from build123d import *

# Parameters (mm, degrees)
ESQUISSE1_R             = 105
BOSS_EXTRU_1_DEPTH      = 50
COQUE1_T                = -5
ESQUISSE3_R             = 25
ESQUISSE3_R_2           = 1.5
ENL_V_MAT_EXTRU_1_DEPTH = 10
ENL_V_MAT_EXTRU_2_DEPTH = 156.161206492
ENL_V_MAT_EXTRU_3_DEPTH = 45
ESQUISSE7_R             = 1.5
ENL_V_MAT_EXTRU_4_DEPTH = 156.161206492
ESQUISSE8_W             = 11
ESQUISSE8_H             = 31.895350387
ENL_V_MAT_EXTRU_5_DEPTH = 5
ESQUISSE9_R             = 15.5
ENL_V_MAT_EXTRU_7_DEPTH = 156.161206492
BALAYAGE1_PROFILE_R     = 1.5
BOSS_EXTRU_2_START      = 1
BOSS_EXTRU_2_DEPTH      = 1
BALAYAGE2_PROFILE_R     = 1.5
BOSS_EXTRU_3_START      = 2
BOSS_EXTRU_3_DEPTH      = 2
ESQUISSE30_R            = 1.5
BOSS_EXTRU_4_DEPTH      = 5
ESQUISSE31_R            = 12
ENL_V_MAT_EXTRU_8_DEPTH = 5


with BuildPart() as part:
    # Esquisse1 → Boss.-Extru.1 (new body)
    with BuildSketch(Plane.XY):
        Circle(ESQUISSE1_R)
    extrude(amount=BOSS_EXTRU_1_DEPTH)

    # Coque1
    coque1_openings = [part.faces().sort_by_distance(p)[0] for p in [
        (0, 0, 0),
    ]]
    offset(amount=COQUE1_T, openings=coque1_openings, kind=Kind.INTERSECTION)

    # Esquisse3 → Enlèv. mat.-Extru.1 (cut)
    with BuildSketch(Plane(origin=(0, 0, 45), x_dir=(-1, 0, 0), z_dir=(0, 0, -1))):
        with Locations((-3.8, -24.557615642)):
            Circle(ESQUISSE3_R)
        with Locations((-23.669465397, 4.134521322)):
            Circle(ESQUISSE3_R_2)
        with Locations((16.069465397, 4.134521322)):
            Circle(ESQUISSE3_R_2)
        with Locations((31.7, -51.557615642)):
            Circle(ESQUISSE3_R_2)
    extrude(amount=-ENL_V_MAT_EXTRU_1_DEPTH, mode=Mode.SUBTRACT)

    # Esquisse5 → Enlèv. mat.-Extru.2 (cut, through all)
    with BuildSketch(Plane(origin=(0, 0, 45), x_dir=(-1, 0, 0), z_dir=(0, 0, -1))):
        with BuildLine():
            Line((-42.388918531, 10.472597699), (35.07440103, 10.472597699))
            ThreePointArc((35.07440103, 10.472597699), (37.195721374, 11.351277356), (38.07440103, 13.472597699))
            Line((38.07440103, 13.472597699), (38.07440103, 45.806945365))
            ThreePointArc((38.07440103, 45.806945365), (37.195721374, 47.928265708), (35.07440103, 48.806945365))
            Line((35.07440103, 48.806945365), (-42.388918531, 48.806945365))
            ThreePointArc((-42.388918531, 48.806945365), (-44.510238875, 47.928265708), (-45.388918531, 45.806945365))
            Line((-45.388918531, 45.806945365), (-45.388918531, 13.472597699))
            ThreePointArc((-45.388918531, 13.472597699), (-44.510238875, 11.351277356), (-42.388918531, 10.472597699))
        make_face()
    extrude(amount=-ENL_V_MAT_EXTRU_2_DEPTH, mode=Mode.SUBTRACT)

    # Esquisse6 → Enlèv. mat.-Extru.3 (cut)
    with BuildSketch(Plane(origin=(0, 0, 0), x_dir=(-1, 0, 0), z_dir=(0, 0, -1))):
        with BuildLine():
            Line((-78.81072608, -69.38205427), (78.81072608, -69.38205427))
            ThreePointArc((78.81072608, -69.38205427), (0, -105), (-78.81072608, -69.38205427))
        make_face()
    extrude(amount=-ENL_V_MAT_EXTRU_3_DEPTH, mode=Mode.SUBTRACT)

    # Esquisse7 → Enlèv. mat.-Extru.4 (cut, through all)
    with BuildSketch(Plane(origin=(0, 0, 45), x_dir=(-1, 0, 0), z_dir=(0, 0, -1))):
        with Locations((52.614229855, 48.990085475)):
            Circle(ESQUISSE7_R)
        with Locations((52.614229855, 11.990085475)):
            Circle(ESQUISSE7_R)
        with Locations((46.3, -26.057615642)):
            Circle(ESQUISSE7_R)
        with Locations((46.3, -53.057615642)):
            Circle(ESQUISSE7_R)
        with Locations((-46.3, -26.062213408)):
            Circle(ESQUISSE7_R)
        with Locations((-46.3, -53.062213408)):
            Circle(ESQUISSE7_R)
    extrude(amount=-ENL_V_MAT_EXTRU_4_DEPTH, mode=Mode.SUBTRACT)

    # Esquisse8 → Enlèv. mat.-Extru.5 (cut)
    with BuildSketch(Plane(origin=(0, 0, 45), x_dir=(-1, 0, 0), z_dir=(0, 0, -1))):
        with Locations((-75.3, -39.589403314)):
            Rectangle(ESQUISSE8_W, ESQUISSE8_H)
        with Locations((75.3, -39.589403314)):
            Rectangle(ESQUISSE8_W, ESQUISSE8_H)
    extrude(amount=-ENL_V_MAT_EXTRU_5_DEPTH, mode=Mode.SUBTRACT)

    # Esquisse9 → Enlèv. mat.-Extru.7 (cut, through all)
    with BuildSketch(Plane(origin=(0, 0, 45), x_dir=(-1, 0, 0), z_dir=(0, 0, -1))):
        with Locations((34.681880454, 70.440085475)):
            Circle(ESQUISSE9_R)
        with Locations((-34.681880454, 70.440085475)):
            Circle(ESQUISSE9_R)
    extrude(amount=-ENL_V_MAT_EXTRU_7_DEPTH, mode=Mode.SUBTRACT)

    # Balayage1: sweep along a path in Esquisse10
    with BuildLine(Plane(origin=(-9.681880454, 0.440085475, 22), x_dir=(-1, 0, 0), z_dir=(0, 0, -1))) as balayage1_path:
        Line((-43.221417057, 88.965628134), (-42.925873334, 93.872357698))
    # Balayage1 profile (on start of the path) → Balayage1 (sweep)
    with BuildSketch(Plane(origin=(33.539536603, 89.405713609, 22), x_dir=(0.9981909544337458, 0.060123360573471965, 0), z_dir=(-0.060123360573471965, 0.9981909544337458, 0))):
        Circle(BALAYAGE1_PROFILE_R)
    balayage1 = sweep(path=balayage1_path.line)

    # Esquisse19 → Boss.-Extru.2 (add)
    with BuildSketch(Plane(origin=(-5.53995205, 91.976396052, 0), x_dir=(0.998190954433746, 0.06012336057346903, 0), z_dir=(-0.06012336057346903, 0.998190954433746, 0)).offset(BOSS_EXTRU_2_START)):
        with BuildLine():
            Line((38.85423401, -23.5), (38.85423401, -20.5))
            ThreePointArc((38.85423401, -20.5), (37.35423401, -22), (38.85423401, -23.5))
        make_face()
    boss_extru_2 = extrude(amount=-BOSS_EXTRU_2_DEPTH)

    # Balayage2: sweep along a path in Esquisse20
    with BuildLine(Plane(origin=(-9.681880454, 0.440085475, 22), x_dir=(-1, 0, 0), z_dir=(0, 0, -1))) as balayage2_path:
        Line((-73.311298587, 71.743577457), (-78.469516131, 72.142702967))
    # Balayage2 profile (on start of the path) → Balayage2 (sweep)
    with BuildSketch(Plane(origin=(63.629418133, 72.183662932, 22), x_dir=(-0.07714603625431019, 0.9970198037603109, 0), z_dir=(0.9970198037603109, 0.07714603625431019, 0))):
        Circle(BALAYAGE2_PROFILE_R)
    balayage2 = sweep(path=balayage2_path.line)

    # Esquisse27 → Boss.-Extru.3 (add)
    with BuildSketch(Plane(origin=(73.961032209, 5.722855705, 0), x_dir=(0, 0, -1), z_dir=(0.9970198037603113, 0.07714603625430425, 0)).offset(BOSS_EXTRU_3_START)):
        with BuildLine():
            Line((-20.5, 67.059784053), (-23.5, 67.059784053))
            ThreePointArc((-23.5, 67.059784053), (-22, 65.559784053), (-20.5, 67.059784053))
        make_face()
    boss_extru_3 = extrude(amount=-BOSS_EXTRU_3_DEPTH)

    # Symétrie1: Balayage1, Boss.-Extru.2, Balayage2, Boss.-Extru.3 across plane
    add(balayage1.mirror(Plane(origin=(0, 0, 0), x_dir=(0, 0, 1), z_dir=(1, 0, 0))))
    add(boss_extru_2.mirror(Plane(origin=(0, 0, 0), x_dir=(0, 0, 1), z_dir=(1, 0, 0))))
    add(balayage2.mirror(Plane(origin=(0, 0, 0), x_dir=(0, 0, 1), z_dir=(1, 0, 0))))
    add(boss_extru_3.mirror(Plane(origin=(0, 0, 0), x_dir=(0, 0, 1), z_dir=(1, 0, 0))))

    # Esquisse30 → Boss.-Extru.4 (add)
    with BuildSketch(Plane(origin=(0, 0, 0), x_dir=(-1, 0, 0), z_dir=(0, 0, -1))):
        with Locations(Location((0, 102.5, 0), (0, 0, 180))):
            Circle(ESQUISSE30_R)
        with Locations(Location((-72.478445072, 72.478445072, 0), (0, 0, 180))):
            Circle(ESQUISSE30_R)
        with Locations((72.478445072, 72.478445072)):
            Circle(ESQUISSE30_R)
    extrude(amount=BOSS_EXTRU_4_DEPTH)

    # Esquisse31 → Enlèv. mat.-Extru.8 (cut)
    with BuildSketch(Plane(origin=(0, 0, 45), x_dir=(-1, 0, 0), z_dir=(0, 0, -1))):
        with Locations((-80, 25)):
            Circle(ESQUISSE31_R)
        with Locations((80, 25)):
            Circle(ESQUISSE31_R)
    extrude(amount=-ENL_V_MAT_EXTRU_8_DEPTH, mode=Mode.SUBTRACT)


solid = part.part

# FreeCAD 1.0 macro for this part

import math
import FreeCAD as App
import Part
import Sketcher

V = App.Vector


def faces_at(feature, points):
    """Names of the faces that lie closest to the given points."""
    faces = feature.Shape.Faces
    near = lambda p: min(range(len(faces)), key=lambda i: faces[i].distToShape(Part.Vertex(*p))[0])
    return sorted({f"Face{near(p) + 1}" for p in points})

doc = App.newDocument("Part")
body = doc.addObject("PartDesign::Body", "Body")

# Sketch on XY plane
sketch1 = doc.addObject("Sketcher::SketchObject", "Sketch")
body.addObject(sketch1)
sketch1.AttachmentSupport = (doc.XY_Plane, [""])
sketch1.MapMode = "FlatFace"
sketch1.addGeometry(Part.Circle(V(0, 0, 0), V(0, 0, 1), 105), False)
sketch1.addConstraint([
    Sketcher.Constraint("Coincident", 0, 3, -1, 1),
    Sketcher.Constraint("Diameter", 0, 210.0),
])
pad1 = doc.addObject("PartDesign::Pad", "Pad")
body.addObject(pad1)
pad1.Profile = sketch1
pad1.Length = 50
doc.recompute()

thickness = doc.addObject("PartDesign::Thickness", "Thickness")
body.addObject(thickness)
thickness.Base = (pad1, faces_at(pad1, [(0, 0, 0)]))
thickness.Value = 5
thickness.Reversed = True
thickness.Join = "Intersection"

# Sketch on XY plane
sketch2 = doc.addObject("Sketcher::SketchObject", "Sketch001")
body.addObject(sketch2)
sketch2.AttachmentSupport = (doc.XY_Plane, [""])
sketch2.MapMode = "FlatFace"
sketch2.AttachmentOffset = App.Placement(V(0, 0, 45), App.Rotation())
sketch2.addGeometry([
    Part.Circle(V(3.8, -24.6, 0), V(0, 0, 1), 25),
    Part.Circle(V(23.7, 4.1, 0), V(0, 0, 1), 1.5),
    Part.Circle(V(-16.1, 4.1, 0), V(0, 0, 1), 1.5),
    Part.Circle(V(-31.7, -51.6, 0), V(0, 0, 1), 1.5),
], False)
sketch2.addConstraint([
    Sketcher.Constraint("Equal", 1, 2),
    Sketcher.Constraint("Equal", 2, 3),
    Sketcher.Constraint("Horizontal", 1, 3, 2, 3),
    Sketcher.Constraint("Diameter", 0, 50.0),
    Sketcher.Constraint("Diameter", 1, 3.0),
    Sketcher.Constraint("DistanceY", 3, 3, 0, 3, 27.0),
    Sketcher.Constraint("DistanceX", -1, 1, 0, 3, 3.8),
    Sketcher.Constraint("DistanceX", 3, 3, -1, 1, 31.7),
    Sketcher.Constraint("DistanceY", -1, 1, 1, 3, 4.134521),
    Sketcher.Constraint("DistanceX", 2, 3, 1, 3, 39.738931),
    Sketcher.Constraint("DistanceY", 0, 3, -1, 1, 24.557616),
    Sketcher.Constraint("DistanceX", -1, 1, 1, 3, 23.669465),
])
pocket1 = doc.addObject("PartDesign::Pocket", "Pocket")
body.addObject(pocket1)
pocket1.Profile = sketch2
pocket1.Length = 10
pocket1.Reversed = True

# Sketch on XY plane
sketch3 = doc.addObject("Sketcher::SketchObject", "Sketch002")
body.addObject(sketch3)
sketch3.AttachmentSupport = (doc.XY_Plane, [""])
sketch3.MapMode = "FlatFace"
sketch3.AttachmentOffset = App.Placement(V(0, 0, 45), App.Rotation())
sketch3.addGeometry([
    Part.LineSegment(V(42.4, 10.5, 0), V(-35.1, 10.5, 0)),  # 0
    Part.ArcOfCircle(Part.Circle(V(-35.1, 13.5, 0), V(0, 0, 1), 3), math.radians(180), math.radians(270)),  # 1
    Part.LineSegment(V(-38.1, 13.5, 0), V(-38.1, 45.8, 0)),  # 2
    Part.ArcOfCircle(Part.Circle(V(-35.1, 45.8, 0), V(0, 0, 1), 3), math.radians(90), math.radians(180)),  # 3
    Part.LineSegment(V(-35.1, 48.8, 0), V(42.4, 48.8, 0)),  # 4
    Part.ArcOfCircle(Part.Circle(V(42.4, 45.8, 0), V(0, 0, 1), 3), math.radians(0), math.radians(90)),  # 5
    Part.LineSegment(V(45.4, 45.8, 0), V(45.4, 13.5, 0)),  # 6
    Part.ArcOfCircle(Part.Circle(V(42.4, 13.5, 0), V(0, 0, 1), 3), math.radians(-90), math.radians(0)),  # 7
], False)
sketch3.addConstraint([
    Sketcher.Constraint("Tangent", 0, 2, 1, 2),
    Sketcher.Constraint("Tangent", 1, 1, 2, 1),
    Sketcher.Constraint("Tangent", 2, 2, 3, 2),
    Sketcher.Constraint("Tangent", 3, 1, 4, 1),
    Sketcher.Constraint("Tangent", 4, 2, 5, 2),
    Sketcher.Constraint("Tangent", 5, 1, 6, 1),
    Sketcher.Constraint("Tangent", 6, 2, 7, 2),
    Sketcher.Constraint("Tangent", 7, 1, 0, 1),
    Sketcher.Constraint("Horizontal", 0),
    Sketcher.Constraint("Vertical", 2),
    Sketcher.Constraint("Horizontal", 4),
    Sketcher.Constraint("Vertical", 6),
    Sketcher.Constraint("Equal", 1, 3),
    Sketcher.Constraint("Equal", 3, 5),
    Sketcher.Constraint("Equal", 5, 7),
    Sketcher.Constraint("Radius", 1, 3.0),
    Sketcher.Constraint("DistanceX", 0, 2, 0, 1, 77.46332),
    Sketcher.Constraint("DistanceX", 1, 3, -1, 1, 35.074401),
    Sketcher.Constraint("DistanceY", 2, 1, 2, 2, 32.334348),
    Sketcher.Constraint("DistanceY", -1, 1, 1, 3, 13.472598),
])
pocket2 = doc.addObject("PartDesign::Pocket", "Pocket001")
body.addObject(pocket2)
pocket2.Profile = sketch3
pocket2.Type = "ThroughAll"
pocket2.Reversed = True

# Sketch on XY plane
sketch4 = doc.addObject("Sketcher::SketchObject", "Sketch003")
body.addObject(sketch4)
sketch4.AttachmentSupport = (doc.XY_Plane, [""])
sketch4.MapMode = "FlatFace"
sketch4.addGeometry([
    Part.LineSegment(V(-79, -69, 0), V(79, -69, 0)),
    Part.ArcOfCircle(Part.Circle(V(0, 0, 0), V(0, 0, 1), 105), math.radians(-139), math.radians(-41)),
], False)
sketch4.addConstraint([
    Sketcher.Constraint("Coincident", 0, 1, 1, 1),
    Sketcher.Constraint("Coincident", 1, 2, 0, 2),
    Sketcher.Constraint("Horizontal", 0),
    Sketcher.Constraint("Coincident", 1, 3, -1, 1),
    Sketcher.Constraint("Radius", 1, 105.0),
    Sketcher.Constraint("DistanceX", 0, 1, 0, 2, 157.621452),
])
pocket3 = doc.addObject("PartDesign::Pocket", "Pocket002")
body.addObject(pocket3)
pocket3.Profile = sketch4
pocket3.Length = 45
pocket3.Reversed = True

# Sketch on XY plane
sketch5 = doc.addObject("Sketcher::SketchObject", "Sketch004")
body.addObject(sketch5)
sketch5.AttachmentSupport = (doc.XY_Plane, [""])
sketch5.MapMode = "FlatFace"
sketch5.AttachmentOffset = App.Placement(V(0, 0, 45), App.Rotation())
sketch5.addGeometry([
    Part.Circle(V(-52.6, 49, 0), V(0, 0, 1), 1.5),  # 0
    Part.Circle(V(-52.6, 12, 0), V(0, 0, 1), 1.5),  # 1
    Part.Circle(V(-46.3, -26.1, 0), V(0, 0, 1), 1.5),  # 2
    Part.Circle(V(-46.3, -53.1, 0), V(0, 0, 1), 1.5),  # 3
    Part.Circle(V(46.3, -26.1, 0), V(0, 0, 1), 1.5),  # 4
    Part.Circle(V(46.3, -53.1, 0), V(0, 0, 1), 1.5),  # 5
], False)
sketch5.addConstraint([
    Sketcher.Constraint("Equal", 0, 1),
    Sketcher.Constraint("Equal", 1, 2),
    Sketcher.Constraint("Equal", 2, 3),
    Sketcher.Constraint("Equal", 3, 4),
    Sketcher.Constraint("Equal", 4, 5),
    Sketcher.Constraint("Vertical", 0, 3, 1, 3),
    Sketcher.Constraint("Vertical", 2, 3, 3, 3),
    Sketcher.Constraint("Vertical", 4, 3, 5, 3),
    Sketcher.Constraint("Diameter", 0, 3.0),
    Sketcher.Constraint("DistanceY", 1, 3, 0, 3, 37.0),
    Sketcher.Constraint("DistanceY", 3, 3, 2, 3, 27.0),
    Sketcher.Constraint("DistanceY", 5, 3, 4, 3, 27.0),
    Sketcher.Constraint("DistanceX", 2, 3, -1, 1, 46.3),
    Sketcher.Constraint("DistanceX", -1, 1, 4, 3, 46.3),
    Sketcher.Constraint("DistanceY", 2, 3, 1, 3, 38.047701),
    Sketcher.Constraint("DistanceY", 4, 3, 1, 3, 38.052299),
    Sketcher.Constraint("DistanceX", 0, 3, -1, 1, 52.61423),
    Sketcher.Constraint("DistanceY", -1, 1, 0, 3, 48.990085),
])
pocket4 = doc.addObject("PartDesign::Pocket", "Pocket003")
body.addObject(pocket4)
pocket4.Profile = sketch5
pocket4.Type = "ThroughAll"
pocket4.Reversed = True

# Sketch on XY plane
sketch6 = doc.addObject("Sketcher::SketchObject", "Sketch005")
body.addObject(sketch6)
sketch6.AttachmentSupport = (doc.XY_Plane, [""])
sketch6.MapMode = "FlatFace"
sketch6.AttachmentOffset = App.Placement(V(0, 0, 45), App.Rotation())
sketch6.addGeometry([
    Part.LineSegment(V(81, -24, 0), V(81, -56, 0)),  # 0
    Part.LineSegment(V(81, -56, 0), V(70, -56, 0)),  # 1
    Part.LineSegment(V(70, -56, 0), V(70, -24, 0)),  # 2
    Part.LineSegment(V(70, -24, 0), V(81, -24, 0)),  # 3
    Part.LineSegment(V(-70, -24, 0), V(-70, -56, 0)),  # 4
    Part.LineSegment(V(-70, -56, 0), V(-81, -56, 0)),  # 5
    Part.LineSegment(V(-81, -56, 0), V(-81, -24, 0)),  # 6
    Part.LineSegment(V(-81, -24, 0), V(-70, -24, 0)),  # 7
], False)
sketch6.addConstraint([
    Sketcher.Constraint("Coincident", 0, 2, 1, 1),
    Sketcher.Constraint("Coincident", 1, 2, 2, 1),
    Sketcher.Constraint("Coincident", 2, 2, 3, 1),
    Sketcher.Constraint("Coincident", 3, 2, 0, 1),
    Sketcher.Constraint("Coincident", 4, 2, 5, 1),
    Sketcher.Constraint("Coincident", 5, 2, 6, 1),
    Sketcher.Constraint("Coincident", 6, 2, 7, 1),
    Sketcher.Constraint("Coincident", 7, 2, 4, 1),
    Sketcher.Constraint("Vertical", 0),
    Sketcher.Constraint("Horizontal", 1),
    Sketcher.Constraint("Vertical", 2),
    Sketcher.Constraint("Horizontal", 3),
    Sketcher.Constraint("Vertical", 4),
    Sketcher.Constraint("Horizontal", 5),
    Sketcher.Constraint("Vertical", 6),
    Sketcher.Constraint("Horizontal", 7),
    Sketcher.Constraint("Symmetric", 1, 2, 4, 2, -2),
    Sketcher.Constraint("Symmetric", 3, 2, 6, 2, -2),
    Sketcher.Constraint("DistanceX", 1, 2, 1, 1, 11.0),
    Sketcher.Constraint("DistanceX", -1, 1, 0, 2, 80.8),
    Sketcher.Constraint("DistanceY", 0, 2, 0, 1, 31.89535),
    Sketcher.Constraint("DistanceY", 0, 2, -1, 1, 55.537079),
])
pocket5 = doc.addObject("PartDesign::Pocket", "Pocket004")
body.addObject(pocket5)
pocket5.Profile = sketch6
pocket5.Length = 5
pocket5.Reversed = True

# Sketch on XY plane
sketch7 = doc.addObject("Sketcher::SketchObject", "Sketch006")
body.addObject(sketch7)
sketch7.AttachmentSupport = (doc.XY_Plane, [""])
sketch7.MapMode = "FlatFace"
sketch7.AttachmentOffset = App.Placement(V(0, 0, 45), App.Rotation())
sketch7.addGeometry([
    Part.Circle(V(-35, 70, 0), V(0, 0, 1), 16),
    Part.Circle(V(35, 70, 0), V(0, 0, 1), 16),
], False)
sketch7.addConstraint([
    Sketcher.Constraint("Equal", 0, 1),
    Sketcher.Constraint("Symmetric", 0, 3, 1, 3, -2),
    Sketcher.Constraint("Diameter", 0, 31.0),
    Sketcher.Constraint("DistanceX", 0, 3, -1, 1, 34.68188),
    Sketcher.Constraint("DistanceY", -1, 1, 0, 3, 70.440085),
])
pocket6 = doc.addObject("PartDesign::Pocket", "Pocket005")
body.addObject(pocket6)
pocket6.Profile = sketch7
pocket6.Type = "ThroughAll"
pocket6.Reversed = True

# Sketch on an angled plane
sketch8 = doc.addObject("Sketcher::SketchObject", "Sketch007")
body.addObject(sketch8)
sketch8.Placement = App.Placement(V(33.539537, 89.405714, 22), App.Rotation(V(0.998190954, 0.060123361, 0), V(0, 0, -0.999999999), V(-0.060123361, 0.998190954, 0), "ZXY"))
sketch8.addGeometry(Part.Circle(V(0, 0, 0), V(0, 0, 1), 1.5), False)
sketch8.addConstraint([
    Sketcher.Constraint("Coincident", 0, 3, -1, 1),
    Sketcher.Constraint("Diameter", 0, 3.0),
])

# Sketch on an angled plane
sketch9 = doc.addObject("Sketcher::SketchObject", "Sketch008")
body.addObject(sketch9)
sketch9.Placement = App.Placement(V(38.783945, 2.336047, 0), App.Rotation(V(-0.060123361, 0.998190954, 0), V(0, 0, 0.999999999), V(0.998190954, 0.060123361, 0), "ZXY"))
sketch9.addGeometry(Part.LineSegment(V(87.2, 22, 0), V(92.1, 22, 0)), False)
sketch9.addConstraint([
    Sketcher.Constraint("Horizontal", 0),
    Sketcher.Constraint("DistanceY", -1, 1, 0, 1, 22.0),
    Sketcher.Constraint("DistanceX", 0, 1, 0, 2, 4.915622),
    Sketcher.Constraint("DistanceX", -1, 1, 0, 1, 87.227465),
])
doc.recompute()

additivepipe = doc.addObject("PartDesign::AdditivePipe", "AdditivePipe")
body.addObject(additivepipe)
additivepipe.Profile = sketch8
additivepipe.Spine = (sketch9, ["Edge1"])

# Sketch on an angled plane
sketch10 = doc.addObject("Sketcher::SketchObject", "Sketch009")
body.addObject(sketch10)
sketch10.Placement = App.Placement(V(-5.600075, 92.974587, 0), App.Rotation(V(0.998190954, 0.060123361, 0), V(0, 0, -0.999999999), V(-0.060123361, 0.998190954, 0), "ZXY"))
sketch10.addGeometry([
    Part.LineSegment(V(38.9, -23.5, 0), V(38.9, -20.5, 0)),
    Part.ArcOfCircle(Part.Circle(V(38.9, -22, 0), V(0, 0, 1), 1.5), math.radians(90), math.radians(270)),
], False)
sketch10.addConstraint([
    Sketcher.Constraint("Coincident", 0, 1, 1, 2),
    Sketcher.Constraint("Coincident", 1, 1, 0, 2),
    Sketcher.Constraint("Vertical", 0),
    Sketcher.Constraint("Vertical", 1, 3, 0, 1),
    Sketcher.Constraint("Radius", 1, 1.5),
    Sketcher.Constraint("DistanceY", 1, 3, -1, 1, 22.0),
    Sketcher.Constraint("DistanceX", -1, 1, 1, 3, 38.854234),
])
pad2 = doc.addObject("PartDesign::Pad", "Pad001")
body.addObject(pad2)
pad2.Profile = sketch10
pad2.Length = 1
pad2.Reversed = True

# Sketch on an angled plane
sketch11 = doc.addObject("Sketcher::SketchObject", "Sketch010")
body.addObject(sketch11)
sketch11.Placement = App.Placement(V(63.629418, 72.183663, 22), App.Rotation(V(-0.077146036, 0.997019804, 0), V(0, 0, 1), V(0.997019804, 0.077146036, 0), "ZXY"))
sketch11.addGeometry(Part.Circle(V(0, 0, 0), V(0, 0, 1), 1.5), False)
sketch11.addConstraint([
    Sketcher.Constraint("Coincident", 0, 3, -1, 1),
    Sketcher.Constraint("Diameter", 0, 3.0),
])

# Sketch on an angled plane
sketch12 = doc.addObject("Sketcher::SketchObject", "Sketch011")
body.addObject(sketch12)
sketch12.Placement = App.Placement(V(-5.173397, 66.859933, 0), App.Rotation(V(0.997019804, 0.077146036, 0), V(0, 0, 1), V(0.077146036, -0.997019804, 0), "ZXY"))
sketch12.addGeometry(Part.LineSegment(V(69, 22, 0), V(74, 22, 0)), False)
sketch12.addConstraint([
    Sketcher.Constraint("Horizontal", 0),
    Sketcher.Constraint("DistanceY", -1, 1, 0, 1, 22.0),
    Sketcher.Constraint("DistanceX", 0, 1, 0, 2, 5.173636),
    Sketcher.Constraint("DistanceX", -1, 1, 0, 2, 74.182109),
])
doc.recompute()

additivepipe2 = doc.addObject("PartDesign::AdditivePipe", "AdditivePipe001")
body.addObject(additivepipe2)
additivepipe2.Profile = sketch11
additivepipe2.Spine = (sketch12, ["Edge1"])

# Sketch on an angled plane
sketch13 = doc.addObject("Sketcher::SketchObject", "Sketch012")
body.addObject(sketch13)
sketch13.Placement = App.Placement(V(75.955072, 5.877148, 0), App.Rotation(V(0, 0, -1), V(-0.077146036, 0.997019804, 0), V(0.997019804, 0.077146036, 0), "ZXY"))
sketch13.addGeometry([
    Part.LineSegment(V(-20.5, 67.1, 0), V(-23.5, 67.1, 0)),
    Part.ArcOfCircle(Part.Circle(V(-22, 67.1, 0), V(0, 0, 1), 1.5), math.radians(180), math.radians(360)),
], False)
sketch13.addConstraint([
    Sketcher.Constraint("Coincident", 0, 1, 1, 2),
    Sketcher.Constraint("Coincident", 1, 1, 0, 2),
    Sketcher.Constraint("Horizontal", 0),
    Sketcher.Constraint("Horizontal", 1, 3, 0, 1),
    Sketcher.Constraint("Radius", 1, 1.5),
    Sketcher.Constraint("DistanceX", 1, 3, -1, 1, 22.0),
    Sketcher.Constraint("DistanceY", -1, 1, 1, 3, 67.059784),
])
pad3 = doc.addObject("PartDesign::Pad", "Pad002")
body.addObject(pad3)
pad3.Profile = sketch13
pad3.Length = 2
pad3.Reversed = True
doc.recompute()

mirrored = doc.addObject("PartDesign::Mirrored", "Mirrored")
body.addObject(mirrored)
mirrored.Originals = [additivepipe, pad2, additivepipe2, pad3]
mirrored.MirrorPlane = (doc.YZ_Plane, [""])
body.Tip = mirrored

# Sketch on XY plane
sketch14 = doc.addObject("Sketcher::SketchObject", "Sketch013")
body.addObject(sketch14)
sketch14.AttachmentSupport = (doc.XY_Plane, [""])
sketch14.MapMode = "FlatFace"
sketch14.addGeometry([
    Part.Circle(V(0, 102.5, 0), V(0, 0, 1), 1.5),
    Part.Circle(V(72.5, 72.5, 0), V(0, 0, 1), 1.5),
    Part.Circle(V(-72.5, 72.5, 0), V(0, 0, 1), 1.5),
], False)
sketch14.addConstraint([
    Sketcher.Constraint("Equal", 0, 1),
    Sketcher.Constraint("Equal", 1, 2),
    Sketcher.Constraint("Symmetric", 1, 3, 2, 3, -2),
    Sketcher.Constraint("PointOnObject", 0, 3, -2),
    Sketcher.Constraint("Diameter", 0, 3.0),
    Sketcher.Constraint("DistanceY", -1, 1, 0, 3, 102.5),
    Sketcher.Constraint("DistanceX", 2, 3, 1, 3, 144.95689),
    Sketcher.Constraint("DistanceY", -1, 1, 1, 3, 72.478445),
])
pad4 = doc.addObject("PartDesign::Pad", "Pad003")
body.addObject(pad4)
pad4.Profile = sketch14
pad4.Length = 5
pad4.Reversed = True

# Sketch on XY plane
sketch15 = doc.addObject("Sketcher::SketchObject", "Sketch014")
body.addObject(sketch15)
sketch15.AttachmentSupport = (doc.XY_Plane, [""])
sketch15.MapMode = "FlatFace"
sketch15.AttachmentOffset = App.Placement(V(0, 0, 45), App.Rotation())
sketch15.addGeometry([
    Part.Circle(V(80, 25, 0), V(0, 0, 1), 12),
    Part.Circle(V(-80, 25, 0), V(0, 0, 1), 12),
], False)
sketch15.addConstraint([
    Sketcher.Constraint("Equal", 0, 1),
    Sketcher.Constraint("Symmetric", 0, 3, 1, 3, -2),
    Sketcher.Constraint("Diameter", 0, 24.0),
    Sketcher.Constraint("DistanceX", -1, 1, 0, 3, 80.0),
    Sketcher.Constraint("DistanceY", -1, 1, 0, 3, 25.0),
])
pocket7 = doc.addObject("PartDesign::Pocket", "Pocket006")
body.addObject(pocket7)
pocket7.Profile = sketch15
pocket7.Length = 5
pocket7.Reversed = True

doc.recompute()
